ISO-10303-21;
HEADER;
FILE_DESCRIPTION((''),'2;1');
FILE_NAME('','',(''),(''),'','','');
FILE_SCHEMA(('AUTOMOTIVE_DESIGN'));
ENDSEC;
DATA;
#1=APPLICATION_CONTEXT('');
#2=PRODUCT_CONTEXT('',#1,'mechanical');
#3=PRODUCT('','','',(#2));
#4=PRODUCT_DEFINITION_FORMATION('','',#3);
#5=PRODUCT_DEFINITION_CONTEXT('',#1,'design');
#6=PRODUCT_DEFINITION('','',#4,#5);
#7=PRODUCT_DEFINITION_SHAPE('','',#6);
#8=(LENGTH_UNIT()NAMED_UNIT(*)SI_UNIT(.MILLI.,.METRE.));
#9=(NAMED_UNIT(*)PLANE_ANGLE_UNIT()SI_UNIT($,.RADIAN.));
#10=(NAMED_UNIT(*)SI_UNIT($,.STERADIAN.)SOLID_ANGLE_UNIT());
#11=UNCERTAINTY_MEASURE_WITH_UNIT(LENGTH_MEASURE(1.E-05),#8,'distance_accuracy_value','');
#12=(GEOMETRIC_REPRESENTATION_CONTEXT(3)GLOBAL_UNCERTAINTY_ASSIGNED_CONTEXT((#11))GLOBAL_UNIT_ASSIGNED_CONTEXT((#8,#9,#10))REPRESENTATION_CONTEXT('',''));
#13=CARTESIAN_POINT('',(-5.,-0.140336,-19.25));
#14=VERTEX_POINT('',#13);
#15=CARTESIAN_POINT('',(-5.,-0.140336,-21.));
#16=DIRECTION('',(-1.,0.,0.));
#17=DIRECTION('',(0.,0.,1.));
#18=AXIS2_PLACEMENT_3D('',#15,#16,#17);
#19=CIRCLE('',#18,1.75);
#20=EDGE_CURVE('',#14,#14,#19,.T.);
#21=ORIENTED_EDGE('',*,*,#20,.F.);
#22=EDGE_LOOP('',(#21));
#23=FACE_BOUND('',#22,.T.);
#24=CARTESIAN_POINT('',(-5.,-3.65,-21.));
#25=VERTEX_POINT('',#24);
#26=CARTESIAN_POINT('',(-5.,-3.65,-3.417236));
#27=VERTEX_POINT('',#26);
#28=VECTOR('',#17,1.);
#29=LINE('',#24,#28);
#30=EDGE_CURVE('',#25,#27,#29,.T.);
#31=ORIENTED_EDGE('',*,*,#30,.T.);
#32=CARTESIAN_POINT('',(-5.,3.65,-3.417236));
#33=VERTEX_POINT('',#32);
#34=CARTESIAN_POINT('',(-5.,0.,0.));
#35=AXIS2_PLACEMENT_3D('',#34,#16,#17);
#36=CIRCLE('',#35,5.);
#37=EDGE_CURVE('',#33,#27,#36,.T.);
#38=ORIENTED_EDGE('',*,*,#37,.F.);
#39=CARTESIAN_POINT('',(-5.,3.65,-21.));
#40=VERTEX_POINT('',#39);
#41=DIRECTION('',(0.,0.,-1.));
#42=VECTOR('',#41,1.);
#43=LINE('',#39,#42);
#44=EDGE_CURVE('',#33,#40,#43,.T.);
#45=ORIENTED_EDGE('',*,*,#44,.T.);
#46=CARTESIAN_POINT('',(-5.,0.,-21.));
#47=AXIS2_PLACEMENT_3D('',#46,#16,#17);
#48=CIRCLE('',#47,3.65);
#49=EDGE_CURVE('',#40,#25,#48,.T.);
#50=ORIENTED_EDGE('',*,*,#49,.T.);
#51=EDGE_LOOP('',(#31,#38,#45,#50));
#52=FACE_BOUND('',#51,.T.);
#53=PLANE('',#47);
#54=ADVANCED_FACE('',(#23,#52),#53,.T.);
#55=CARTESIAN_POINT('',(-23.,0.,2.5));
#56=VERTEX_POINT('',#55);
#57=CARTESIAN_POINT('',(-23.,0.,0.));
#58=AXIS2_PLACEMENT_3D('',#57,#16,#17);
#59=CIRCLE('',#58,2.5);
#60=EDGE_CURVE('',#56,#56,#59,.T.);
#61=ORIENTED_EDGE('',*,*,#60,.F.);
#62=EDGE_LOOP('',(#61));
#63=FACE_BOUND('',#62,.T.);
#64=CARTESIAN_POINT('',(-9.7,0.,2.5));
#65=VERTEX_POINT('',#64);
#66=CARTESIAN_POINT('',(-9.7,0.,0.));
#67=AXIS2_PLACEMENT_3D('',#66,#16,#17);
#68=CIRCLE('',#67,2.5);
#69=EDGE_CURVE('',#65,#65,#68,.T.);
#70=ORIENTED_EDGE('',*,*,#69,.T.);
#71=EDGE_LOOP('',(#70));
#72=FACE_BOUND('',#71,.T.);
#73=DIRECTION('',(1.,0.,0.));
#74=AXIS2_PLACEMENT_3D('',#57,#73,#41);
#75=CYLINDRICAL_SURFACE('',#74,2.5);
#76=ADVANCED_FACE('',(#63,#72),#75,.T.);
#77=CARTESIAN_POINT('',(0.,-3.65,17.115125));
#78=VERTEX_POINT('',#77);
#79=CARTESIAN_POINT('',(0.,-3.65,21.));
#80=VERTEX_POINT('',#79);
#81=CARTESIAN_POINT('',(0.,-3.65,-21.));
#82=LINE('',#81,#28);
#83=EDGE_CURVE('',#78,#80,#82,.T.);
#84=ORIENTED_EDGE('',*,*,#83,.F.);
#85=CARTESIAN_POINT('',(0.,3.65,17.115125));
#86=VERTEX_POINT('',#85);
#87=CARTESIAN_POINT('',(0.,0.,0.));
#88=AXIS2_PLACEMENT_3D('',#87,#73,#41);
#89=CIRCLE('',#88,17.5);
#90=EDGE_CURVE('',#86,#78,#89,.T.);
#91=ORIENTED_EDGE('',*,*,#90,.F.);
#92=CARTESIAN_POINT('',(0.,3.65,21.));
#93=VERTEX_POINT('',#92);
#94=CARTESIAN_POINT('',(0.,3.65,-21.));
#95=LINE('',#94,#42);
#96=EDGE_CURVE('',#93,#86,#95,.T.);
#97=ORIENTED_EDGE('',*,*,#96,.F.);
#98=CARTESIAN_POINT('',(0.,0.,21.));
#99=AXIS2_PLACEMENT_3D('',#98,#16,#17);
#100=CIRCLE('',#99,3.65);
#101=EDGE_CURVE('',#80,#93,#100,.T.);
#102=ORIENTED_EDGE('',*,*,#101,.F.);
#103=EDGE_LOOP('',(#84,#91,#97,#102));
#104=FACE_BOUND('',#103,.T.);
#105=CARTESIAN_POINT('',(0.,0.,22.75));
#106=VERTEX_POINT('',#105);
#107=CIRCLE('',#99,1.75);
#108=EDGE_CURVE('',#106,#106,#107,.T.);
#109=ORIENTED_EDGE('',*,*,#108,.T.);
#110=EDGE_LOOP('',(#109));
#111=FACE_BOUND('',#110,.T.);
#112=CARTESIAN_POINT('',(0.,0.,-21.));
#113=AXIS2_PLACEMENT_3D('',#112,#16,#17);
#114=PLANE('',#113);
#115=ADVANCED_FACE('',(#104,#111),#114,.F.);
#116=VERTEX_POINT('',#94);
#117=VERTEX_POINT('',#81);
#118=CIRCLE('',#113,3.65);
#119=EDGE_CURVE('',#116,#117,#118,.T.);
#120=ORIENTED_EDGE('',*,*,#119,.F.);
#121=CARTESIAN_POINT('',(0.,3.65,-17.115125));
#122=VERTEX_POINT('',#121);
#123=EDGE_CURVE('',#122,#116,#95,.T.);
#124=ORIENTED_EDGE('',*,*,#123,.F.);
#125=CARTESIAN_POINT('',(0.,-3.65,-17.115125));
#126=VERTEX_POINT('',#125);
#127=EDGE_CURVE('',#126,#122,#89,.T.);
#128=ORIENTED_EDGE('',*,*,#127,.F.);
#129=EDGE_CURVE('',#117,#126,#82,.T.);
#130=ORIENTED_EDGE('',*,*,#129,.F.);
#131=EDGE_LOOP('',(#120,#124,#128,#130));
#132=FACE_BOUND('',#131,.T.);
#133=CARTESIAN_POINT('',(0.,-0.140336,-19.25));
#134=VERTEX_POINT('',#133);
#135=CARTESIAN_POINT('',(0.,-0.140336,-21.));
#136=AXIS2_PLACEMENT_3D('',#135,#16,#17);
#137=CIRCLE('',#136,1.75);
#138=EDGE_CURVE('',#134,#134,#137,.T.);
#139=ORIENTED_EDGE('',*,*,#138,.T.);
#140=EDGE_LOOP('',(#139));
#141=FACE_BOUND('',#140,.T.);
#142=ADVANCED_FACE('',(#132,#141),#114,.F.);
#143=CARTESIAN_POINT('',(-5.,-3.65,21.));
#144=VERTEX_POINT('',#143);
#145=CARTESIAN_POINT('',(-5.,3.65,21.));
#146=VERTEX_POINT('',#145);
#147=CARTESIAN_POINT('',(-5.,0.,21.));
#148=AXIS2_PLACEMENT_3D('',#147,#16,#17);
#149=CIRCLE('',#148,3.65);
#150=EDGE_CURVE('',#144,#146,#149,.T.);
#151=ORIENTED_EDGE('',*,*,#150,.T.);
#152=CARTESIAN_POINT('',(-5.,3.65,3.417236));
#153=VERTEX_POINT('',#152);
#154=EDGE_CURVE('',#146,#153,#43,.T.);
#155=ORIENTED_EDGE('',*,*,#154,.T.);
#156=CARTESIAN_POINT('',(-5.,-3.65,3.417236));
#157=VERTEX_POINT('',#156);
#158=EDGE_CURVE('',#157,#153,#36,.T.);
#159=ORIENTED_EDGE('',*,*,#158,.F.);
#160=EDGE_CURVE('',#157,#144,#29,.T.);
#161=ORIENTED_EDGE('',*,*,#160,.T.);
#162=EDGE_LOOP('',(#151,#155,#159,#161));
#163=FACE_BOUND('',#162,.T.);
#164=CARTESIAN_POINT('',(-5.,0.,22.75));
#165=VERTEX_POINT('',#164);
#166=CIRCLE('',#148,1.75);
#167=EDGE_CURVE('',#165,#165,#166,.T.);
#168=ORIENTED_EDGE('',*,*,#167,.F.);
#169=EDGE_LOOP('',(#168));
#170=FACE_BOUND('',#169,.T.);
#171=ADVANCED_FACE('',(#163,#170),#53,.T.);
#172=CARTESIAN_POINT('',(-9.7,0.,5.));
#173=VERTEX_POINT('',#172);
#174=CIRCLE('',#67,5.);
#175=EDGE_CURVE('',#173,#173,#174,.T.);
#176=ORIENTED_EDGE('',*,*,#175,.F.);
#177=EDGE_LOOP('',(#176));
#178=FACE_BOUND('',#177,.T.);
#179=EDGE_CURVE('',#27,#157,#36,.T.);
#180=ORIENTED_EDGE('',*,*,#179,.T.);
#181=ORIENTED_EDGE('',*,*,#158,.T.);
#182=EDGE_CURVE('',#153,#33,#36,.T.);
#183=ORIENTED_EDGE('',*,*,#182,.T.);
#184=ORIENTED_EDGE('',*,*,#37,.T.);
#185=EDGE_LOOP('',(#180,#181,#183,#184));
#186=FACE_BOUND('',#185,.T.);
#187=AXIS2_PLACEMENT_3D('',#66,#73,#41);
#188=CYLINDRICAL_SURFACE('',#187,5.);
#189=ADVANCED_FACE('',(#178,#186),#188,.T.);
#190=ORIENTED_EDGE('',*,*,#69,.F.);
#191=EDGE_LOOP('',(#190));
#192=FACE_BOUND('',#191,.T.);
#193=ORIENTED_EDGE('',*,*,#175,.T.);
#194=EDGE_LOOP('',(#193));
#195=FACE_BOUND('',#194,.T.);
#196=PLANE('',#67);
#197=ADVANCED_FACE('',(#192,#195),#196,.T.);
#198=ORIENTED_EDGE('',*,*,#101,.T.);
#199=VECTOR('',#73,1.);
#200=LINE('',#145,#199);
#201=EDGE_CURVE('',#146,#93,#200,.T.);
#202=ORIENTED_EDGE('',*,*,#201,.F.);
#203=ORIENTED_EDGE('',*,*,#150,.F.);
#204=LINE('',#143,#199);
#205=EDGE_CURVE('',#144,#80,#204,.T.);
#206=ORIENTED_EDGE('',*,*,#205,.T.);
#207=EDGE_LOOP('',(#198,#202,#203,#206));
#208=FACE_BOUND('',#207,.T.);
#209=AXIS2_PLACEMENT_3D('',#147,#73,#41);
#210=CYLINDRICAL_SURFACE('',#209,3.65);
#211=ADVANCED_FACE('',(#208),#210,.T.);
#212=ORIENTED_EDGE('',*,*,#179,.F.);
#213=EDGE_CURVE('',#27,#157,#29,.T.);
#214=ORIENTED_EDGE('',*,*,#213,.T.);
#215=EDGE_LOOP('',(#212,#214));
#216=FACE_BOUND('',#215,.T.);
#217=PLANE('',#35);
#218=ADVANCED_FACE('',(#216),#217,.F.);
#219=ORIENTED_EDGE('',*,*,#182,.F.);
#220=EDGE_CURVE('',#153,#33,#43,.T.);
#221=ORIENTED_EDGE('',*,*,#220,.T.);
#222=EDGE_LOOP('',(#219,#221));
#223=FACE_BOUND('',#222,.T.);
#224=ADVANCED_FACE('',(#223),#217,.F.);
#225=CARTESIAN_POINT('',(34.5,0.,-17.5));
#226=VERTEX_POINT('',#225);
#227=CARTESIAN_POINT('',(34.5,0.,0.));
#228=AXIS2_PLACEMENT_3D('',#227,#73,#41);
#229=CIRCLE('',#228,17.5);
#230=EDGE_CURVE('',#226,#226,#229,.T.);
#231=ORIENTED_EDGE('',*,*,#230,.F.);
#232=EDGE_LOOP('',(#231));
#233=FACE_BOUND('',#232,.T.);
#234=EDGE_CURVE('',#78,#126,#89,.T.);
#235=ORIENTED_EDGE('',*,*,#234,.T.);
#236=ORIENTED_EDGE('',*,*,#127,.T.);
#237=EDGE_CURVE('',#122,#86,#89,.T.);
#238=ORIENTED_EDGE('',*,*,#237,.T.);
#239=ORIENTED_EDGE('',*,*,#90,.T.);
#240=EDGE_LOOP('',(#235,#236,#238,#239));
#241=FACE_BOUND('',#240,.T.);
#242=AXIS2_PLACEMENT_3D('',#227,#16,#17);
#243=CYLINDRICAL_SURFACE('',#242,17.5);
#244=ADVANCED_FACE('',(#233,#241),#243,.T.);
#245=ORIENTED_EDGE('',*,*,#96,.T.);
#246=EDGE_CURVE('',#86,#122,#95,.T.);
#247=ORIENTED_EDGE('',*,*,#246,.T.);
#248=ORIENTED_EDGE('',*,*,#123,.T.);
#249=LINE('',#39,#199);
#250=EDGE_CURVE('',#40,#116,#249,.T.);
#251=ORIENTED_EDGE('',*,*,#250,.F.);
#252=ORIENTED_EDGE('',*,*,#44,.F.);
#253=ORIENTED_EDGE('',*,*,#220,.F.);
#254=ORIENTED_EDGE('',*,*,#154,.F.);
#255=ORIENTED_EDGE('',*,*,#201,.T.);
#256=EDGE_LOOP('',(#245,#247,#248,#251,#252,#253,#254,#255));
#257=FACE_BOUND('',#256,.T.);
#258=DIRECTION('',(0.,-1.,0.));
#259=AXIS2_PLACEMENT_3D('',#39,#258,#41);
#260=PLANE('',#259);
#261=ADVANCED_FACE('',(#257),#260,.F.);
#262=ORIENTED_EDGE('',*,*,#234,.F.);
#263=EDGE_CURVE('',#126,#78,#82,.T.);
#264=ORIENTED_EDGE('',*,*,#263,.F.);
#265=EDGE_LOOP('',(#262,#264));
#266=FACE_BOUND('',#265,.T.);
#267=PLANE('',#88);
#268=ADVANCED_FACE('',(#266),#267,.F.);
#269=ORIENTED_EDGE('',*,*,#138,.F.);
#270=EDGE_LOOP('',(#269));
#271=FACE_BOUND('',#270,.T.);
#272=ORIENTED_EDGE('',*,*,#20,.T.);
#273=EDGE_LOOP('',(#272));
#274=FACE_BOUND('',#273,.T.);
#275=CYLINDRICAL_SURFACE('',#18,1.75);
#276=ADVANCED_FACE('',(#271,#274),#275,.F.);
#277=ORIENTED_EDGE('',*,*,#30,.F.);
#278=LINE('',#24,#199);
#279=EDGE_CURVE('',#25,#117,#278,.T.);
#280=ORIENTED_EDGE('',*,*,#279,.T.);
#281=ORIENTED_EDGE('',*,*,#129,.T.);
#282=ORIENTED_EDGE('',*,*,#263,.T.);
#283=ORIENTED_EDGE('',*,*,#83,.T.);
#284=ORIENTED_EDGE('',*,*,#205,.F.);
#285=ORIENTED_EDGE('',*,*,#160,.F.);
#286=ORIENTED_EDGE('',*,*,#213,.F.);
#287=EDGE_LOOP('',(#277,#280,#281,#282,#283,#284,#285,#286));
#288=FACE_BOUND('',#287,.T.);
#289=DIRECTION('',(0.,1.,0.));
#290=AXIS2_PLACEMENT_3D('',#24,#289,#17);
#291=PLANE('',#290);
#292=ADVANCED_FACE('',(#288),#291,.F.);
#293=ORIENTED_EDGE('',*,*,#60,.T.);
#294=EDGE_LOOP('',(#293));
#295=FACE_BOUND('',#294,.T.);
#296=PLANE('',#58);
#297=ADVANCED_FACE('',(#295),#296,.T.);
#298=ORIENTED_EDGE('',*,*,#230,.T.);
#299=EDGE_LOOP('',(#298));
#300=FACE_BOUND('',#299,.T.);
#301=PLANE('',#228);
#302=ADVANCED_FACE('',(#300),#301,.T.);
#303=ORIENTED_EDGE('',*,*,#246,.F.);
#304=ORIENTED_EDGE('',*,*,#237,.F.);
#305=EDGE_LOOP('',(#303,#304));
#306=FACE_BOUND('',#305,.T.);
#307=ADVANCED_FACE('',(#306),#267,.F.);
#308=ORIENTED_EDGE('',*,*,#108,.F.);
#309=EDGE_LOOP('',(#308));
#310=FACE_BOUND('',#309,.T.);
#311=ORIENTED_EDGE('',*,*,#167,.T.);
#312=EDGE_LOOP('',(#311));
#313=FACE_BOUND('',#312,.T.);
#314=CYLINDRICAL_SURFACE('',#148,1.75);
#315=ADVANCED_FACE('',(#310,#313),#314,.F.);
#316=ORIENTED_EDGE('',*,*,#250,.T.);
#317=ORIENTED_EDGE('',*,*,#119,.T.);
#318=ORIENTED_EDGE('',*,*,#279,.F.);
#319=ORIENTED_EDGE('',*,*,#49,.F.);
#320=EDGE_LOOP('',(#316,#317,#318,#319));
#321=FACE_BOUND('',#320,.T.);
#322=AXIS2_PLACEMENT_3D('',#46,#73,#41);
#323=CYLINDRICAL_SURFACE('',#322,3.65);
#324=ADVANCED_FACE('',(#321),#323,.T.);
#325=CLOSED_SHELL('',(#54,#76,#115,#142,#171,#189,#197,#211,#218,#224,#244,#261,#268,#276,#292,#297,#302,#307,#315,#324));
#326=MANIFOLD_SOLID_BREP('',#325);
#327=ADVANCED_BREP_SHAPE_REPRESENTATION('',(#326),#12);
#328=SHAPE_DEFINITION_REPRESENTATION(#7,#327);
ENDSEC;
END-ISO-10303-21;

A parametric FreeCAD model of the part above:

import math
import FreeCAD as App
import Part
import Sketcher
from FreeCAD import Vector
Q = App.Units.Quantity

doc = App.newDocument("Part")
body = doc.addObject("PartDesign::Body", "Body")

# Sketch on YZ plane
sketch1 = body.newObject("Sketcher::SketchObject", "Sketch")
sketch1.AttachmentSupport = (doc.getObject("YZ_Plane"), [""])
sketch1.MapMode = "FlatFace"
sketch1.addGeometry(Part.Circle(Vector(0, 0, 0), Vector(0, 0, 1), 18), False)
sketch1.addConstraint([
    Sketcher.Constraint("Coincident", 0, 3, -1, 1),
    Sketcher.Constraint("Diameter", 0, Q("35 mm")),
])
pad1 = body.newObject("PartDesign::Pad", "Pad")
pad1.Profile = sketch1
pad1.Length = 34.5

# Sketch on YZ plane
sketch2 = body.newObject("Sketcher::SketchObject", "Sketch001")
sketch2.AttachmentSupport = (doc.getObject("YZ_Plane"), [""])
sketch2.MapMode = "FlatFace"
sketch2.addGeometry([
    Part.LineSegment(Vector(3.6, 21, 0), Vector(3.6, -21, 0)),
    Part.ArcOfCircle(Part.Circle(Vector(0, -21, 0), Vector(0, 0, 1), 3.6), math.radians(180), math.radians(360)),
    Part.LineSegment(Vector(-3.6, -21, 0), Vector(-3.6, 21, 0)),
    Part.ArcOfCircle(Part.Circle(Vector(0, 21, 0), Vector(0, 0, 1), 3.6), math.radians(0), math.radians(180)),
], False)
sketch2.addConstraint([
    Sketcher.Constraint("Tangent", 0, 2, 1, 2),
    Sketcher.Constraint("Tangent", 1, 1, 2, 1),
    Sketcher.Constraint("Tangent", 2, 2, 3, 2),
    Sketcher.Constraint("Tangent", 3, 1, 0, 1),
    Sketcher.Constraint("Vertical", 0),
    Sketcher.Constraint("Vertical", 2),
    Sketcher.Constraint("Symmetric", 1, 3, 3, 3, -1, 1),
    Sketcher.Constraint("DistanceY", 0, 2, 0, 1, Q("42 mm")),
    Sketcher.Constraint("Radius", 1, Q("3.65 mm")),
])
pad2 = body.newObject("PartDesign::Pad", "Pad001")
pad2.Profile = sketch2
pad2.Length = 5
pad2.Reversed = True

# Sketch on YZ plane
sketch3 = body.newObject("Sketcher::SketchObject", "Sketch002")
sketch3.AttachmentSupport = (doc.getObject("YZ_Plane"), [""])
sketch3.MapMode = "FlatFace"
sketch3.AttachmentOffset = App.Placement(Vector(0, 0, -5), App.Rotation())
sketch3.addGeometry([
    Part.Circle(Vector(-0.1, -21, 0), Vector(0, 0, 1), 1.8),
    Part.Circle(Vector(0, 21, 0), Vector(0, 0, 1), 1.8),
], False)
sketch3.addConstraint([
    Sketcher.Constraint("Equal", 0, 1),
    Sketcher.Constraint("PointOnObject", 1, 3, -2),
    Sketcher.Constraint("Diameter", 0, Q("3.5 mm")),
    Sketcher.Constraint("DistanceY", 0, 3, -1, 1, Q("21 mm")),
    Sketcher.Constraint("DistanceY", -1, 1, 1, 3, Q("21 mm")),
    Sketcher.Constraint("DistanceX", 0, 3, -1, 1, Q("0.140336 mm")),
])
doc.recompute()
hole = body.newObject("PartDesign::Hole", "Hole")
hole.Profile = sketch3
hole.ThreadType = "None"
hole.Diameter = 3.5
hole.DepthType = "Dimension"
hole.Depth = 70
hole.DrillPoint = "Angled"
hole.DrillPointAngle = 118
hole.Reversed = True

# Sketch on YZ plane
sketch4 = body.newObject("Sketcher::SketchObject", "Sketch003")
sketch4.AttachmentSupport = (doc.getObject("YZ_Plane"), [""])
sketch4.MapMode = "FlatFace"
sketch4.AttachmentOffset = App.Placement(Vector(0, 0, -5), App.Rotation())
sketch4.addGeometry(Part.Circle(Vector(0, 0, 0), Vector(0, 0, 1), 5), False)
sketch4.addConstraint([
    Sketcher.Constraint("Coincident", 0, 3, -1, 1),
    Sketcher.Constraint("Diameter", 0, Q("10 mm")),
])
pad3 = body.newObject("PartDesign::Pad", "Pad002")
pad3.Profile = sketch4
pad3.Length = 4.7
pad3.Reversed = True

# Sketch on YZ plane
sketch5 = body.newObject("Sketcher::SketchObject", "Sketch004")
sketch5.AttachmentSupport = (doc.getObject("YZ_Plane"), [""])
sketch5.MapMode = "FlatFace"
sketch5.AttachmentOffset = App.Placement(Vector(0, 0, -9.7), App.Rotation())
sketch5.addGeometry(Part.Circle(Vector(0, 0, 0), Vector(0, 0, 1), 2.5), False)
sketch5.addConstraint([
    Sketcher.Constraint("Coincident", 0, 3, -1, 1),
    Sketcher.Constraint("Diameter", 0, Q("5 mm")),
])
pad4 = body.newObject("PartDesign::Pad", "Pad003")
pad4.Profile = sketch5
pad4.Length = 13.3
pad4.Reversed = True

doc.recompute()
